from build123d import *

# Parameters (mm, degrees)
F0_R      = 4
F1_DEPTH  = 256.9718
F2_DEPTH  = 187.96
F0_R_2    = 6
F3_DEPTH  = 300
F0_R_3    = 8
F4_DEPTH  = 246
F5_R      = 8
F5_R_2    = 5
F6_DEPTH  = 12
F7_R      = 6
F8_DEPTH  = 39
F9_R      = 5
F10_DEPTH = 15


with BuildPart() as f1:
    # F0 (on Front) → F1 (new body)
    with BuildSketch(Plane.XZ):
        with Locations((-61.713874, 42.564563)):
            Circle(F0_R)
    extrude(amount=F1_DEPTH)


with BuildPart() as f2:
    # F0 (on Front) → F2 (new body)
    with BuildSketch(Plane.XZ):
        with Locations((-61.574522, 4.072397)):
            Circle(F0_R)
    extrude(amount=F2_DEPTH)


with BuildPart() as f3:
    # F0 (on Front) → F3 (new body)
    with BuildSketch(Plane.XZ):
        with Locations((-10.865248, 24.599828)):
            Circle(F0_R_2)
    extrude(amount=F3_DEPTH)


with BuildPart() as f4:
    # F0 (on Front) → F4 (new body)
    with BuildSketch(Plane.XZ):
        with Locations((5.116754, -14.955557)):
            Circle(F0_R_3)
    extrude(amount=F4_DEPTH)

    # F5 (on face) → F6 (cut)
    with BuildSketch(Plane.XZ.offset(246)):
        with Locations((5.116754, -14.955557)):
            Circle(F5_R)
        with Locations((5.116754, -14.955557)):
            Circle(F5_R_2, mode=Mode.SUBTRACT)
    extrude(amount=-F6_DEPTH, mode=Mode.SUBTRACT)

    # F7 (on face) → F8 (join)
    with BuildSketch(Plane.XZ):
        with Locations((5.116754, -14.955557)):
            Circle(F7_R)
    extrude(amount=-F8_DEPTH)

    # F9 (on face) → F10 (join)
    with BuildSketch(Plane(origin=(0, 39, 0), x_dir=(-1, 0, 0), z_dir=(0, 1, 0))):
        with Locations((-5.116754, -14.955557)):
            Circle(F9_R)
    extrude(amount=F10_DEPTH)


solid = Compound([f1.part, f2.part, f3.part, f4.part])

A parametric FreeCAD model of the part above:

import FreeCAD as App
import Part
import Sketcher
Q = App.Units.Quantity

doc = App.newDocument("Part")
params = doc.addObject("Spreadsheet::Sheet", "Params")
for row, (alias, value) in enumerate([
    ("sketch1_diameter", "8 mm"),
    ("pad1_length", "256.9718 mm"),
    ("sketch2_diameter", "8 mm"),
    ("pad2_length", "187.96 mm"),
    ("sketch3_diameter", "12 mm"),
    ("pad3_length", "300 mm"),
    ("sketch4_diameter", "16 mm"),
    ("pad4_length", "246 mm"),
    ("sketch5_diameter", "16 mm"),
    ("sketch5_diameter2", "10 mm"),
    ("pocket1_length", "12 mm"),
    ("sketch6_diameter", "12 mm"),
    ("pad5_length", "39 mm"),
    ("sketch7_diameter", "10 mm"),
    ("pad6_length", "15 mm"),
], start=1):
    params.set(f"A{row}", alias)
    params.set(f"B{row}", "=" + value)
    params.setAlias(f"B{row}", alias)

body = doc.addObject("PartDesign::Body", "Body")

# Sketch on XZ plane
sketch1 = doc.addObject("Sketcher::SketchObject", "Sketch")
body.addObject(sketch1)
sketch1.AttachmentSupport = (doc.XZ_Plane, [""])
sketch1.MapMode = "FlatFace"
sketch1.addGeometry(Part.Circle(App.Vector(-61.7, 42.6, 0), App.Vector(0, 0, 1), 4), False)
sketch1.addConstraint(Sketcher.Constraint("Diameter", 0, Q("8 mm")))
sketch1.addConstraint(Sketcher.Constraint("DistanceX", 0, 3, -1, 1, Q("61.713874 mm")))
sketch1.addConstraint(Sketcher.Constraint("DistanceY", -1, 1, 0, 3, Q("42.564563 mm")))
sketch1.setExpression("Constraints[0]", "Params.sketch1_diameter")
pad1 = doc.addObject("PartDesign::Pad", "Pad")
body.addObject(pad1)
pad1.Profile = sketch1
pad1.setExpression("Length", "Params.pad1_length")
body2 = doc.addObject("PartDesign::Body", "Body001")

# Sketch on XZ plane
sketch2 = doc.addObject("Sketcher::SketchObject", "Sketch001")
body2.addObject(sketch2)
sketch2.AttachmentSupport = (doc.getObject("XZ_Plane001"), [""])
sketch2.MapMode = "FlatFace"
sketch2.addGeometry(Part.Circle(App.Vector(-61.6, 4.1, 0), App.Vector(0, 0, 1), 4), False)
sketch2.addConstraint(Sketcher.Constraint("Diameter", 0, Q("8 mm")))
sketch2.addConstraint(Sketcher.Constraint("DistanceX", 0, 3, -1, 1, Q("61.574522 mm")))
sketch2.addConstraint(Sketcher.Constraint("DistanceY", -1, 1, 0, 3, Q("4.072397 mm")))
sketch2.setExpression("Constraints[0]", "Params.sketch2_diameter")
pad2 = doc.addObject("PartDesign::Pad", "Pad001")
body2.addObject(pad2)
pad2.Profile = sketch2
pad2.setExpression("Length", "Params.pad2_length")
body3 = doc.addObject("PartDesign::Body", "Body002")

# Sketch on XZ plane
sketch3 = doc.addObject("Sketcher::SketchObject", "Sketch002")
body3.addObject(sketch3)
sketch3.AttachmentSupport = (doc.getObject("XZ_Plane002"), [""])
sketch3.MapMode = "FlatFace"
sketch3.addGeometry(Part.Circle(App.Vector(-11, 25, 0), App.Vector(0, 0, 1), 6), False)
sketch3.addConstraint(Sketcher.Constraint("Diameter", 0, Q("12 mm")))
sketch3.addConstraint(Sketcher.Constraint("DistanceX", 0, 3, -1, 1, Q("10.865248 mm")))
sketch3.addConstraint(Sketcher.Constraint("DistanceY", -1, 1, 0, 3, Q("24.599828 mm")))
sketch3.setExpression("Constraints[0]", "Params.sketch3_diameter")
pad3 = doc.addObject("PartDesign::Pad", "Pad002")
body3.addObject(pad3)
pad3.Profile = sketch3
pad3.setExpression("Length", "Params.pad3_length")
body4 = doc.addObject("PartDesign::Body", "Body003")

# Sketch on XZ plane
sketch4 = doc.addObject("Sketcher::SketchObject", "Sketch003")
body4.addObject(sketch4)
sketch4.AttachmentSupport = (doc.getObject("XZ_Plane003"), [""])
sketch4.MapMode = "FlatFace"
sketch4.addGeometry(Part.Circle(App.Vector(5, -15, 0), App.Vector(0, 0, 1), 8), False)
sketch4.addConstraint(Sketcher.Constraint("Diameter", 0, Q("16 mm")))
sketch4.addConstraint(Sketcher.Constraint("DistanceX", -1, 1, 0, 3, Q("5.116754 mm")))
sketch4.addConstraint(Sketcher.Constraint("DistanceY", 0, 3, -1, 1, Q("14.955557 mm")))
sketch4.setExpression("Constraints[0]", "Params.sketch4_diameter")
pad4 = doc.addObject("PartDesign::Pad", "Pad003")
body4.addObject(pad4)
pad4.Profile = sketch4
pad4.setExpression("Length", "Params.pad4_length")

# Sketch on XZ plane
sketch5 = doc.addObject("Sketcher::SketchObject", "Sketch004")
body4.addObject(sketch5)
sketch5.AttachmentSupport = (doc.getObject("XZ_Plane003"), [""])
sketch5.MapMode = "FlatFace"
sketch5.AttachmentOffset = App.Placement(App.Vector(0, 0, 246), App.Rotation())
sketch5.addGeometry(Part.Circle(App.Vector(5, -15, 0), App.Vector(0, 0, 1), 8), False)
sketch5.addGeometry(Part.Circle(App.Vector(5, -15, 0), App.Vector(0, 0, 1), 5), False)
sketch5.addConstraint(Sketcher.Constraint("Coincident", 1, 3, 0, 3))
sketch5.addConstraint(Sketcher.Constraint("Diameter", 0, Q("16 mm")))
sketch5.addConstraint(Sketcher.Constraint("Diameter", 1, Q("10 mm")))
sketch5.addConstraint(Sketcher.Constraint("DistanceX", -1, 1, 0, 3, Q("5.116754 mm")))
sketch5.addConstraint(Sketcher.Constraint("DistanceY", 0, 3, -1, 1, Q("14.955557 mm")))
sketch5.setExpression("Constraints[1]", "Params.sketch5_diameter")
sketch5.setExpression("Constraints[2]", "Params.sketch5_diameter2")
pocket1 = doc.addObject("PartDesign::Pocket", "Pocket")
body4.addObject(pocket1)
pocket1.Profile = sketch5
pocket1.setExpression("Length", "Params.pocket1_length")

# Sketch on XZ plane
sketch6 = doc.addObject("Sketcher::SketchObject", "Sketch005")
body4.addObject(sketch6)
sketch6.AttachmentSupport = (doc.getObject("XZ_Plane003"), [""])
sketch6.MapMode = "FlatFace"
sketch6.addGeometry(Part.Circle(App.Vector(5, -15, 0), App.Vector(0, 0, 1), 6), False)
sketch6.addConstraint(Sketcher.Constraint("Diameter", 0, Q("12 mm")))
sketch6.addConstraint(Sketcher.Constraint("DistanceX", -1, 1, 0, 3, Q("5.116754 mm")))
sketch6.addConstraint(Sketcher.Constraint("DistanceY", 0, 3, -1, 1, Q("14.955557 mm")))
sketch6.setExpression("Constraints[0]", "Params.sketch6_diameter")
pad5 = doc.addObject("PartDesign::Pad", "Pad004")
body4.addObject(pad5)
pad5.Profile = sketch6
pad5.setExpression("Length", "Params.pad5_length")
pad5.Reversed = True

# Sketch on XZ plane
sketch7 = doc.addObject("Sketcher::SketchObject", "Sketch006")
body4.addObject(sketch7)
sketch7.AttachmentSupport = (doc.getObject("XZ_Plane003"), [""])
sketch7.MapMode = "FlatFace"
sketch7.AttachmentOffset = App.Placement(App.Vector(0, 0, -39), App.Rotation())
sketch7.addGeometry(Part.Circle(App.Vector(5, -15, 0), App.Vector(0, 0, 1), 5), False)
sketch7.addConstraint(Sketcher.Constraint("Diameter", 0, Q("10 mm")))
sketch7.addConstraint(Sketcher.Constraint("DistanceX", -1, 1, 0, 3, Q("5.116754 mm")))
sketch7.addConstraint(Sketcher.Constraint("DistanceY", 0, 3, -1, 1, Q("14.955557 mm")))
sketch7.setExpression("Constraints[0]", "Params.sketch7_diameter")
pad6 = doc.addObject("PartDesign::Pad", "Pad005")
body4.addObject(pad6)
pad6.Profile = sketch7
pad6.setExpression("Length", "Params.pad6_length")
pad6.Reversed = True

doc.recompute()
